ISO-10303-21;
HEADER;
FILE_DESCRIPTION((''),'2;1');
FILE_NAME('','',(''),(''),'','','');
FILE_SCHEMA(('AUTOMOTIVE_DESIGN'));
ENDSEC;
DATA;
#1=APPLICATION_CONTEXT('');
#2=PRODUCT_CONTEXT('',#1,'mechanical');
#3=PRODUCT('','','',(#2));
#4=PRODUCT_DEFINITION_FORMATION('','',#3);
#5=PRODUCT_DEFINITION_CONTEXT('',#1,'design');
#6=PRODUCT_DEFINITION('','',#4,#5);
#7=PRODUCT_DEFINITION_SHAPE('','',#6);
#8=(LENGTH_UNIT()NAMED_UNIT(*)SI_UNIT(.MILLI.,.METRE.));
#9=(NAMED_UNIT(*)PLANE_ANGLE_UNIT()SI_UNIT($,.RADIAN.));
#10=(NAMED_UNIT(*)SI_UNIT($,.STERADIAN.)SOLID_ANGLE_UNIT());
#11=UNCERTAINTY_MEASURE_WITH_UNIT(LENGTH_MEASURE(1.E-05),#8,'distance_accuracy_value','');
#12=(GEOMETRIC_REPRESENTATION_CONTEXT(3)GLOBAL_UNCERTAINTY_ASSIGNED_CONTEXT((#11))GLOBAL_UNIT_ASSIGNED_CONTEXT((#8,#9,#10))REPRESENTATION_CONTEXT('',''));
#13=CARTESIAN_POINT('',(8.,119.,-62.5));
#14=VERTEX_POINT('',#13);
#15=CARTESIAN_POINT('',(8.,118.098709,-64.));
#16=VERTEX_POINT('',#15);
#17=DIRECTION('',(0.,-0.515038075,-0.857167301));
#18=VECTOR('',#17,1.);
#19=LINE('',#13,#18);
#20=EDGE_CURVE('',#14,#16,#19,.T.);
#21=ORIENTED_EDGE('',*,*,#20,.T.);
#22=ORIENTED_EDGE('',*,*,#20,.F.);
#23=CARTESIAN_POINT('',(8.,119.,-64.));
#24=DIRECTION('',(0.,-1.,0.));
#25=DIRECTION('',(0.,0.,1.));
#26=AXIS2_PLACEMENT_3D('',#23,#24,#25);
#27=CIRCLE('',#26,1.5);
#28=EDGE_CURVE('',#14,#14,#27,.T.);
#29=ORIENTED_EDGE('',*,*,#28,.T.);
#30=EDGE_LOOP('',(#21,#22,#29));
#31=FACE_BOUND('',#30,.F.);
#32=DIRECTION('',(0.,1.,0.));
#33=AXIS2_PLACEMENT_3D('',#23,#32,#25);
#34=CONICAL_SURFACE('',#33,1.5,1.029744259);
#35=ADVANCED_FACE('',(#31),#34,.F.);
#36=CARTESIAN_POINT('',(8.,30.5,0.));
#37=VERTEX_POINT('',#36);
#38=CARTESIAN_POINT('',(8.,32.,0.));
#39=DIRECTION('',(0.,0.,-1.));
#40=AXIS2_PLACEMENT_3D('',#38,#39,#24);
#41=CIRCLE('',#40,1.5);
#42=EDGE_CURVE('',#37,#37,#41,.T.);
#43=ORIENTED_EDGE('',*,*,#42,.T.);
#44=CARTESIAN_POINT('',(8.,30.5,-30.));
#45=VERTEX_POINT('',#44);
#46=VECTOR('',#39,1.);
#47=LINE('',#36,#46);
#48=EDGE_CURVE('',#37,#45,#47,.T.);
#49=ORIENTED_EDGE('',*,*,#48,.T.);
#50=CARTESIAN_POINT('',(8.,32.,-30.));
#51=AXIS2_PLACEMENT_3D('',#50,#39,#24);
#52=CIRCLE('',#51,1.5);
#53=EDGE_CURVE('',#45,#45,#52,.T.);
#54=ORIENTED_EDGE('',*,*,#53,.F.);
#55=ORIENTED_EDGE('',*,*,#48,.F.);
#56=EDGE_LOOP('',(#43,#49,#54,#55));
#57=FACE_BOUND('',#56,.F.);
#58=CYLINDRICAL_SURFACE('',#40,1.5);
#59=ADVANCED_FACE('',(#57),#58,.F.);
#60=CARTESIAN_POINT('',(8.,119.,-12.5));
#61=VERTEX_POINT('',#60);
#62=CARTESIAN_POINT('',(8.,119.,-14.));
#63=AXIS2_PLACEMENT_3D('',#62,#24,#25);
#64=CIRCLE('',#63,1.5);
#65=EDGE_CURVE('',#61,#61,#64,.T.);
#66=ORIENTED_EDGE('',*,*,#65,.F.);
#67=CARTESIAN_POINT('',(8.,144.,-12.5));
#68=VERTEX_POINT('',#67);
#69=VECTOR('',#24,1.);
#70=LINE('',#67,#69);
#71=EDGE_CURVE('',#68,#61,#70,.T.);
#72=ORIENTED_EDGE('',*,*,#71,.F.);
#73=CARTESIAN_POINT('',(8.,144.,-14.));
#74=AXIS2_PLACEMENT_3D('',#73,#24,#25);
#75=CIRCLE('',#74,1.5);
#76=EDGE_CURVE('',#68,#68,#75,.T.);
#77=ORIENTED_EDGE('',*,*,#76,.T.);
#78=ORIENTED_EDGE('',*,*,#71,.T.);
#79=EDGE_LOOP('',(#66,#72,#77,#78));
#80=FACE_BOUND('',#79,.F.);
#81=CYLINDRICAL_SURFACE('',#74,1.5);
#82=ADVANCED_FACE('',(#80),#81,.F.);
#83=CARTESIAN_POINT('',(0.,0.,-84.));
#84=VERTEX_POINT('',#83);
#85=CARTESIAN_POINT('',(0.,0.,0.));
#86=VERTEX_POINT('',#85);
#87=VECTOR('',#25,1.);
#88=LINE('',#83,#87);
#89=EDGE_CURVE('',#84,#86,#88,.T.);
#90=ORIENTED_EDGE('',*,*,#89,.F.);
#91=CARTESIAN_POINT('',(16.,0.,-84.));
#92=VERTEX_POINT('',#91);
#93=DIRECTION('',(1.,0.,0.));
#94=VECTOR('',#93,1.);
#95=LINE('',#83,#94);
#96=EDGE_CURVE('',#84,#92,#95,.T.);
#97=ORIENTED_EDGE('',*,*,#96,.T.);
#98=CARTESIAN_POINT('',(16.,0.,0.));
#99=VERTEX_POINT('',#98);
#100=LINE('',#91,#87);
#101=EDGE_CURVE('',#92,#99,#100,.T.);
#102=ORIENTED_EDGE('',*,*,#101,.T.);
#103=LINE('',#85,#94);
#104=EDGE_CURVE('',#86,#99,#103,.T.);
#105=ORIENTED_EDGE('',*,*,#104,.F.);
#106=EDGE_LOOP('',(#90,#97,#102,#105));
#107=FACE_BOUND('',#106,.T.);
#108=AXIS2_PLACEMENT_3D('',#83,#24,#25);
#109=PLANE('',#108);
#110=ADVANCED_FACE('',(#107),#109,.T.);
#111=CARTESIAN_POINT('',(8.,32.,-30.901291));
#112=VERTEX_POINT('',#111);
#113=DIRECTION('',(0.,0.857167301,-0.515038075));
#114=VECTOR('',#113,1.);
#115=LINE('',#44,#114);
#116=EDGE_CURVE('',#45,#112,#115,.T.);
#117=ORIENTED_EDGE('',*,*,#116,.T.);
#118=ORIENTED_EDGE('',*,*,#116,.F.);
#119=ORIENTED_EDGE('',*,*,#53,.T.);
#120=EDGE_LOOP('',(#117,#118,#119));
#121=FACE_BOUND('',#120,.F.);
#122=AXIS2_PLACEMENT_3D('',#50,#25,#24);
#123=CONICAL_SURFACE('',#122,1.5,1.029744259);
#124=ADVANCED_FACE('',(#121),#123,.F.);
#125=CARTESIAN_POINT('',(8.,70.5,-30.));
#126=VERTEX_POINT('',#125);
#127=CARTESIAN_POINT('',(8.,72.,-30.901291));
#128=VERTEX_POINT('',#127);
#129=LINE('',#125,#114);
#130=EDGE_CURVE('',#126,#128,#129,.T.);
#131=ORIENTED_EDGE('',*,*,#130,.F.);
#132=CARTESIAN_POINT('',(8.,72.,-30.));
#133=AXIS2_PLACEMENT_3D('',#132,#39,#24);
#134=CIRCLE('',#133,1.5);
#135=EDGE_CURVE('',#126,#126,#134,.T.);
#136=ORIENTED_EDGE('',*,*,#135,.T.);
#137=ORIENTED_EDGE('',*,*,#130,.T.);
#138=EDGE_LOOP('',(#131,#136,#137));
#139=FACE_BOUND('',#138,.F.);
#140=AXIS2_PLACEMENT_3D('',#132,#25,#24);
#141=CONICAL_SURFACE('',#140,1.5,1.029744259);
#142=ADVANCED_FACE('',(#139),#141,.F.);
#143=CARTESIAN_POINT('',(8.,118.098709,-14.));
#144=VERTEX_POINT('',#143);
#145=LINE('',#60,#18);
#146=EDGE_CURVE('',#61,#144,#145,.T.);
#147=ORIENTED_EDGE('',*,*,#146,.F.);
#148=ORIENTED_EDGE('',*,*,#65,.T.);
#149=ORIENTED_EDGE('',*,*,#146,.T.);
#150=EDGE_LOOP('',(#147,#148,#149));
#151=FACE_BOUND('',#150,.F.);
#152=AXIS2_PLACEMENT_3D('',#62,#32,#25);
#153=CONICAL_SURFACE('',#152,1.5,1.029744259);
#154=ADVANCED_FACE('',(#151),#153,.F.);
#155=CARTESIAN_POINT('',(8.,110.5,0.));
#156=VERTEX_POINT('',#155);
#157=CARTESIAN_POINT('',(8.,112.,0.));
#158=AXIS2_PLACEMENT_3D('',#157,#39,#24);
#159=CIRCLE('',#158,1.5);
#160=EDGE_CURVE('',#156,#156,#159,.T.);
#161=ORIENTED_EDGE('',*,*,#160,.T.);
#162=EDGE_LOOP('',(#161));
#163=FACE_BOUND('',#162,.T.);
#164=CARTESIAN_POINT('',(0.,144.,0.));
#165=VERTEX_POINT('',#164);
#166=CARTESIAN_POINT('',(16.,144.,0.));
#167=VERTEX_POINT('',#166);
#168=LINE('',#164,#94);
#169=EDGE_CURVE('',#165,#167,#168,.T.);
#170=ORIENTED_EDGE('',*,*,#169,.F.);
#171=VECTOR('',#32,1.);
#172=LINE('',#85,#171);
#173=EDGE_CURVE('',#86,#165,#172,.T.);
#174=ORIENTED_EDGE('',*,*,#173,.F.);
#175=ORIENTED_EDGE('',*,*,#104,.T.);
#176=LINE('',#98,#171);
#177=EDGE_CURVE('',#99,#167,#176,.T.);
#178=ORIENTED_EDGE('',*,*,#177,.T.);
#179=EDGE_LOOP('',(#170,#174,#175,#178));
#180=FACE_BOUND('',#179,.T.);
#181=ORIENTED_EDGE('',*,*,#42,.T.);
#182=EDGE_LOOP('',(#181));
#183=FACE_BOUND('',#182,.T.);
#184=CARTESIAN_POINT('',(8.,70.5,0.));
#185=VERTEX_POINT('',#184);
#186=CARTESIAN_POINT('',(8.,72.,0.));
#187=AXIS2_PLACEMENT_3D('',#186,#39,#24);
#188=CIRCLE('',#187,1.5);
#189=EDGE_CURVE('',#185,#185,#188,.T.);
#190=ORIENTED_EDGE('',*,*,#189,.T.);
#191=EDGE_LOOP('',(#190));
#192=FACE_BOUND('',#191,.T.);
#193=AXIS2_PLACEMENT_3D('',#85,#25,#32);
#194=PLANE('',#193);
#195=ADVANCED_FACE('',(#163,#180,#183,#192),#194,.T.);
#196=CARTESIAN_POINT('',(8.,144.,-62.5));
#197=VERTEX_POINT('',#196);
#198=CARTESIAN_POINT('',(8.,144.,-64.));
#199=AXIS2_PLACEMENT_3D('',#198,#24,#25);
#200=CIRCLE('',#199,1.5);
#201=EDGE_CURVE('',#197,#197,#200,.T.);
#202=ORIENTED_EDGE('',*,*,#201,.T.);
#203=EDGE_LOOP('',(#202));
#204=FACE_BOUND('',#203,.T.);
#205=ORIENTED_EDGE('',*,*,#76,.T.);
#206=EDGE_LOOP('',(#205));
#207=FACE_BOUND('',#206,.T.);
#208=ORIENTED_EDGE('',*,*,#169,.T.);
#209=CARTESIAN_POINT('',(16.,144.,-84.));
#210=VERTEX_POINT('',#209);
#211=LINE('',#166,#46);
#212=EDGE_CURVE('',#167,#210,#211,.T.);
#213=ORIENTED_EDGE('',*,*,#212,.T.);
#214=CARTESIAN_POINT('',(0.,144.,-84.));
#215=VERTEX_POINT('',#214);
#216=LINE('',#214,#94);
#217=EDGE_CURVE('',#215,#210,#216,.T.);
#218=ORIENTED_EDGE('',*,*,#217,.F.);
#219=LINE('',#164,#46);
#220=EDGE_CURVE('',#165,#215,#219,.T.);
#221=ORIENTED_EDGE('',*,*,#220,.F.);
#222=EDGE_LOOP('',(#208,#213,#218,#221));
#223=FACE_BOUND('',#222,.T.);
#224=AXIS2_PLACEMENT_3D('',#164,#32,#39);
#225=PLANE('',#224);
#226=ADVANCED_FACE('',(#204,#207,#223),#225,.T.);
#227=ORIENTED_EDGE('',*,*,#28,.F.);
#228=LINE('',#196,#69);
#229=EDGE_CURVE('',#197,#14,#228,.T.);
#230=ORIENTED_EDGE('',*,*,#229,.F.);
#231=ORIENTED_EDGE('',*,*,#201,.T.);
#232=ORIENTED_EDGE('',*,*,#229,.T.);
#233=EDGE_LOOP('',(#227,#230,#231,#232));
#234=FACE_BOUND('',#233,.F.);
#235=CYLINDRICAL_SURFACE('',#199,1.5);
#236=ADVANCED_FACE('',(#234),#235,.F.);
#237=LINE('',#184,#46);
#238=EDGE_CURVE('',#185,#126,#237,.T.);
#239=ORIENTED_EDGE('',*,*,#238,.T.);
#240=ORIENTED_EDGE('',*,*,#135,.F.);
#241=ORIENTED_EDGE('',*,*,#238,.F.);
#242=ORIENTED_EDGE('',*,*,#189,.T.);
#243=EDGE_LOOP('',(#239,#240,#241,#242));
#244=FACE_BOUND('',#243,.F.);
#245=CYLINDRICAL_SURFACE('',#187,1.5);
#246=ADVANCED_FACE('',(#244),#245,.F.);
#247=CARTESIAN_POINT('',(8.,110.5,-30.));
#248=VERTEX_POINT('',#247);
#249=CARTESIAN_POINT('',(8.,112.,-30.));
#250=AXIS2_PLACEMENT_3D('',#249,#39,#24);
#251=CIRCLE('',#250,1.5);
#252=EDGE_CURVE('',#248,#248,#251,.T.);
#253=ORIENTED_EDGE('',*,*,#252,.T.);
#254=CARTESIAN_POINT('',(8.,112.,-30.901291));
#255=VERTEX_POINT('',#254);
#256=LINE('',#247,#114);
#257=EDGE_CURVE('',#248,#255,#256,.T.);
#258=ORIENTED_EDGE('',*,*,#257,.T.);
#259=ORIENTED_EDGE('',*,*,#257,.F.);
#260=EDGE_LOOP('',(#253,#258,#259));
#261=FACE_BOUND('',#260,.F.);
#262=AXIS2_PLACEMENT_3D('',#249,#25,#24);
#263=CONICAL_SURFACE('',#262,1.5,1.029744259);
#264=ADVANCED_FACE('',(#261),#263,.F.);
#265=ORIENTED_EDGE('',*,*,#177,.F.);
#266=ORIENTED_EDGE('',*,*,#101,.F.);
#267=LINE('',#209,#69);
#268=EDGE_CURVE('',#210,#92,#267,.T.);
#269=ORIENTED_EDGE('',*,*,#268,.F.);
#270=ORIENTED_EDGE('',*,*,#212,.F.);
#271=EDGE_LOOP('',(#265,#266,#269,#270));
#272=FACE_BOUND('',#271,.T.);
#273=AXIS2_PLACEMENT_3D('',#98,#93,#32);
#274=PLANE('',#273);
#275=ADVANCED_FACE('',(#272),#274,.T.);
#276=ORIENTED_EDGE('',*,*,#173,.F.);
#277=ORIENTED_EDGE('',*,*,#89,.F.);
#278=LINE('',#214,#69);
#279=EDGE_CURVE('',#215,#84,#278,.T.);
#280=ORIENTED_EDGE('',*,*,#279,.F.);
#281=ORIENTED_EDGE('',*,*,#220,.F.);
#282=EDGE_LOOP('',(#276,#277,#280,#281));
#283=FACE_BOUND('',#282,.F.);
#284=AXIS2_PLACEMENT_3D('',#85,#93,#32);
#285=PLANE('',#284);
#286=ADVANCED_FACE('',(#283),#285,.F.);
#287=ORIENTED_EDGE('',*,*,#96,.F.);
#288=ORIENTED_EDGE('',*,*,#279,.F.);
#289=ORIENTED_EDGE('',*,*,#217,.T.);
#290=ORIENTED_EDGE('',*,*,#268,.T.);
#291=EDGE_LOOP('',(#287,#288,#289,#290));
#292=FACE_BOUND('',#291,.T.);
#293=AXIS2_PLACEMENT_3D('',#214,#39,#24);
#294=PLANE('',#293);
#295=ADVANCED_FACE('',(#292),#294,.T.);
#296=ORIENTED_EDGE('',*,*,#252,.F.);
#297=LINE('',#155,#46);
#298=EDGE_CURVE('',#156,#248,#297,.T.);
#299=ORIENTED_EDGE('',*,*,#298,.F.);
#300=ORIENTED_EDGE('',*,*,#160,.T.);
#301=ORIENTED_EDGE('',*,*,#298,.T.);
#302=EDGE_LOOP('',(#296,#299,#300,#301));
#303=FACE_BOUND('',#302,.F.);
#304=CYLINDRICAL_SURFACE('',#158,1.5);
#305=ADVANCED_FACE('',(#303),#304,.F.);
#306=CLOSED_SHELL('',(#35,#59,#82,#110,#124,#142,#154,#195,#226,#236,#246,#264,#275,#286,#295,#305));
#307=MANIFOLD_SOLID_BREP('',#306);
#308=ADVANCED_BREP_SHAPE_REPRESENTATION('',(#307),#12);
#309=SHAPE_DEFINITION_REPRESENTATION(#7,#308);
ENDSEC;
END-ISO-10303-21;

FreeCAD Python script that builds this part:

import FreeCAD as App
import Part
import Sketcher
from FreeCAD import Vector


def add_polygon(sketch, points):
    """Adds a closed chain of lines whose ends are joined by coincident constraints."""
    first, n = sketch.GeometryCount, len(points)
    for a, b in zip(points, points[1:] + points[:1]):
        sketch.addGeometry(Part.LineSegment(App.Vector(*a, 0), App.Vector(*b, 0)), False)
    for i in range(n):
        sketch.addConstraint(Sketcher.Constraint("Coincident", first + i, 2, first + (i + 1) % n, 1))

doc = App.newDocument("Part")
body = doc.addObject("PartDesign::Body", "Body")

# Sketch on YZ plane
sketch1 = body.newObject("Sketcher::SketchObject", "Sketch")
sketch1.AttachmentSupport = (doc.getObject("YZ_Plane"), [""])
sketch1.MapMode = "FlatFace"
add_polygon(sketch1, [(144, 0), (0, 0), (0, -84), (144, -84)])  # lines 0-3
sketch1.addConstraint([
    Sketcher.Constraint("Horizontal", 0),
    Sketcher.Constraint("Vertical", 1),
    Sketcher.Constraint("Horizontal", 2),
    Sketcher.Constraint("Vertical", 3),
    Sketcher.Constraint("Coincident", 0, 2, -1, 1),
    Sketcher.Constraint("DistanceX", 0, 2, 0, 1, 144.0),
    Sketcher.Constraint("DistanceY", 1, 2, 1, 1, 84.0),
])
pad1 = body.newObject("PartDesign::Pad", "Pad")
pad1.Profile = sketch1
pad1.Length = 16

# Sketch on XY plane
sketch2 = body.newObject("Sketcher::SketchObject", "Sketch001")
sketch2.AttachmentSupport = (doc.getObject("XY_Plane"), [""])
sketch2.MapMode = "FlatFace"
sketch2.addGeometry([
    Part.Circle(Vector(8, 112, 0), Vector(0, 0, 1), 1.5),
    Part.Circle(Vector(8, 72, 0), Vector(0, 0, 1), 1.5),
    Part.Circle(Vector(8, 32, 0), Vector(0, 0, 1), 1.5),
], False)
sketch2.addConstraint([
    Sketcher.Constraint("Equal", 0, 1),
    Sketcher.Constraint("Equal", 1, 2),
    Sketcher.Constraint("Vertical", 0, 3, 1, 3),
    Sketcher.Constraint("Vertical", 1, 3, 2, 3),
    Sketcher.Constraint("Diameter", 0, 3.0),
    Sketcher.Constraint("DistanceX", -1, 1, 0, 3, 8.0),
    Sketcher.Constraint("DistanceY", -1, 1, 0, 3, 112.0),
    Sketcher.Constraint("DistanceY", -1, 1, 1, 3, 72.0),
    Sketcher.Constraint("DistanceY", -1, 1, 2, 3, 32.0),
])
doc.recompute()
hole = body.newObject("PartDesign::Hole", "Hole")
hole.Profile = sketch2
hole.ThreadType = "None"
hole.Diameter = 3
hole.DepthType = "Dimension"
hole.Depth = 30
hole.DrillPoint = "Angled"
hole.DrillPointAngle = 118

# Sketch on XZ plane
sketch3 = body.newObject("Sketcher::SketchObject", "Sketch002")
sketch3.AttachmentSupport = (doc.getObject("XZ_Plane"), [""])
sketch3.MapMode = "FlatFace"
sketch3.AttachmentOffset = App.Placement(Vector(0, 0, -144), App.Rotation())
sketch3.addGeometry([
    Part.Circle(Vector(8, -14, 0), Vector(0, 0, 1), 1.5),
    Part.Circle(Vector(8, -64, 0), Vector(0, 0, 1), 1.5),
], False)
sketch3.addConstraint([
    Sketcher.Constraint("Equal", 0, 1),
    Sketcher.Constraint("Vertical", 0, 3, 1, 3),
    Sketcher.Constraint("Diameter", 0, 3.0),
    Sketcher.Constraint("DistanceX", -1, 1, 0, 3, 8.0),
    Sketcher.Constraint("DistanceY", 0, 3, -1, 1, 14.0),
    Sketcher.Constraint("DistanceY", 1, 3, -1, 1, 64.0),
])
doc.recompute()
hole2 = body.newObject("PartDesign::Hole", "Hole001")
hole2.Profile = sketch3
hole2.ThreadType = "None"
hole2.Diameter = 3
hole2.DepthType = "Dimension"
hole2.Depth = 25
hole2.DrillPoint = "Angled"
hole2.DrillPointAngle = 118
hole2.Reversed = True

doc.recompute()
